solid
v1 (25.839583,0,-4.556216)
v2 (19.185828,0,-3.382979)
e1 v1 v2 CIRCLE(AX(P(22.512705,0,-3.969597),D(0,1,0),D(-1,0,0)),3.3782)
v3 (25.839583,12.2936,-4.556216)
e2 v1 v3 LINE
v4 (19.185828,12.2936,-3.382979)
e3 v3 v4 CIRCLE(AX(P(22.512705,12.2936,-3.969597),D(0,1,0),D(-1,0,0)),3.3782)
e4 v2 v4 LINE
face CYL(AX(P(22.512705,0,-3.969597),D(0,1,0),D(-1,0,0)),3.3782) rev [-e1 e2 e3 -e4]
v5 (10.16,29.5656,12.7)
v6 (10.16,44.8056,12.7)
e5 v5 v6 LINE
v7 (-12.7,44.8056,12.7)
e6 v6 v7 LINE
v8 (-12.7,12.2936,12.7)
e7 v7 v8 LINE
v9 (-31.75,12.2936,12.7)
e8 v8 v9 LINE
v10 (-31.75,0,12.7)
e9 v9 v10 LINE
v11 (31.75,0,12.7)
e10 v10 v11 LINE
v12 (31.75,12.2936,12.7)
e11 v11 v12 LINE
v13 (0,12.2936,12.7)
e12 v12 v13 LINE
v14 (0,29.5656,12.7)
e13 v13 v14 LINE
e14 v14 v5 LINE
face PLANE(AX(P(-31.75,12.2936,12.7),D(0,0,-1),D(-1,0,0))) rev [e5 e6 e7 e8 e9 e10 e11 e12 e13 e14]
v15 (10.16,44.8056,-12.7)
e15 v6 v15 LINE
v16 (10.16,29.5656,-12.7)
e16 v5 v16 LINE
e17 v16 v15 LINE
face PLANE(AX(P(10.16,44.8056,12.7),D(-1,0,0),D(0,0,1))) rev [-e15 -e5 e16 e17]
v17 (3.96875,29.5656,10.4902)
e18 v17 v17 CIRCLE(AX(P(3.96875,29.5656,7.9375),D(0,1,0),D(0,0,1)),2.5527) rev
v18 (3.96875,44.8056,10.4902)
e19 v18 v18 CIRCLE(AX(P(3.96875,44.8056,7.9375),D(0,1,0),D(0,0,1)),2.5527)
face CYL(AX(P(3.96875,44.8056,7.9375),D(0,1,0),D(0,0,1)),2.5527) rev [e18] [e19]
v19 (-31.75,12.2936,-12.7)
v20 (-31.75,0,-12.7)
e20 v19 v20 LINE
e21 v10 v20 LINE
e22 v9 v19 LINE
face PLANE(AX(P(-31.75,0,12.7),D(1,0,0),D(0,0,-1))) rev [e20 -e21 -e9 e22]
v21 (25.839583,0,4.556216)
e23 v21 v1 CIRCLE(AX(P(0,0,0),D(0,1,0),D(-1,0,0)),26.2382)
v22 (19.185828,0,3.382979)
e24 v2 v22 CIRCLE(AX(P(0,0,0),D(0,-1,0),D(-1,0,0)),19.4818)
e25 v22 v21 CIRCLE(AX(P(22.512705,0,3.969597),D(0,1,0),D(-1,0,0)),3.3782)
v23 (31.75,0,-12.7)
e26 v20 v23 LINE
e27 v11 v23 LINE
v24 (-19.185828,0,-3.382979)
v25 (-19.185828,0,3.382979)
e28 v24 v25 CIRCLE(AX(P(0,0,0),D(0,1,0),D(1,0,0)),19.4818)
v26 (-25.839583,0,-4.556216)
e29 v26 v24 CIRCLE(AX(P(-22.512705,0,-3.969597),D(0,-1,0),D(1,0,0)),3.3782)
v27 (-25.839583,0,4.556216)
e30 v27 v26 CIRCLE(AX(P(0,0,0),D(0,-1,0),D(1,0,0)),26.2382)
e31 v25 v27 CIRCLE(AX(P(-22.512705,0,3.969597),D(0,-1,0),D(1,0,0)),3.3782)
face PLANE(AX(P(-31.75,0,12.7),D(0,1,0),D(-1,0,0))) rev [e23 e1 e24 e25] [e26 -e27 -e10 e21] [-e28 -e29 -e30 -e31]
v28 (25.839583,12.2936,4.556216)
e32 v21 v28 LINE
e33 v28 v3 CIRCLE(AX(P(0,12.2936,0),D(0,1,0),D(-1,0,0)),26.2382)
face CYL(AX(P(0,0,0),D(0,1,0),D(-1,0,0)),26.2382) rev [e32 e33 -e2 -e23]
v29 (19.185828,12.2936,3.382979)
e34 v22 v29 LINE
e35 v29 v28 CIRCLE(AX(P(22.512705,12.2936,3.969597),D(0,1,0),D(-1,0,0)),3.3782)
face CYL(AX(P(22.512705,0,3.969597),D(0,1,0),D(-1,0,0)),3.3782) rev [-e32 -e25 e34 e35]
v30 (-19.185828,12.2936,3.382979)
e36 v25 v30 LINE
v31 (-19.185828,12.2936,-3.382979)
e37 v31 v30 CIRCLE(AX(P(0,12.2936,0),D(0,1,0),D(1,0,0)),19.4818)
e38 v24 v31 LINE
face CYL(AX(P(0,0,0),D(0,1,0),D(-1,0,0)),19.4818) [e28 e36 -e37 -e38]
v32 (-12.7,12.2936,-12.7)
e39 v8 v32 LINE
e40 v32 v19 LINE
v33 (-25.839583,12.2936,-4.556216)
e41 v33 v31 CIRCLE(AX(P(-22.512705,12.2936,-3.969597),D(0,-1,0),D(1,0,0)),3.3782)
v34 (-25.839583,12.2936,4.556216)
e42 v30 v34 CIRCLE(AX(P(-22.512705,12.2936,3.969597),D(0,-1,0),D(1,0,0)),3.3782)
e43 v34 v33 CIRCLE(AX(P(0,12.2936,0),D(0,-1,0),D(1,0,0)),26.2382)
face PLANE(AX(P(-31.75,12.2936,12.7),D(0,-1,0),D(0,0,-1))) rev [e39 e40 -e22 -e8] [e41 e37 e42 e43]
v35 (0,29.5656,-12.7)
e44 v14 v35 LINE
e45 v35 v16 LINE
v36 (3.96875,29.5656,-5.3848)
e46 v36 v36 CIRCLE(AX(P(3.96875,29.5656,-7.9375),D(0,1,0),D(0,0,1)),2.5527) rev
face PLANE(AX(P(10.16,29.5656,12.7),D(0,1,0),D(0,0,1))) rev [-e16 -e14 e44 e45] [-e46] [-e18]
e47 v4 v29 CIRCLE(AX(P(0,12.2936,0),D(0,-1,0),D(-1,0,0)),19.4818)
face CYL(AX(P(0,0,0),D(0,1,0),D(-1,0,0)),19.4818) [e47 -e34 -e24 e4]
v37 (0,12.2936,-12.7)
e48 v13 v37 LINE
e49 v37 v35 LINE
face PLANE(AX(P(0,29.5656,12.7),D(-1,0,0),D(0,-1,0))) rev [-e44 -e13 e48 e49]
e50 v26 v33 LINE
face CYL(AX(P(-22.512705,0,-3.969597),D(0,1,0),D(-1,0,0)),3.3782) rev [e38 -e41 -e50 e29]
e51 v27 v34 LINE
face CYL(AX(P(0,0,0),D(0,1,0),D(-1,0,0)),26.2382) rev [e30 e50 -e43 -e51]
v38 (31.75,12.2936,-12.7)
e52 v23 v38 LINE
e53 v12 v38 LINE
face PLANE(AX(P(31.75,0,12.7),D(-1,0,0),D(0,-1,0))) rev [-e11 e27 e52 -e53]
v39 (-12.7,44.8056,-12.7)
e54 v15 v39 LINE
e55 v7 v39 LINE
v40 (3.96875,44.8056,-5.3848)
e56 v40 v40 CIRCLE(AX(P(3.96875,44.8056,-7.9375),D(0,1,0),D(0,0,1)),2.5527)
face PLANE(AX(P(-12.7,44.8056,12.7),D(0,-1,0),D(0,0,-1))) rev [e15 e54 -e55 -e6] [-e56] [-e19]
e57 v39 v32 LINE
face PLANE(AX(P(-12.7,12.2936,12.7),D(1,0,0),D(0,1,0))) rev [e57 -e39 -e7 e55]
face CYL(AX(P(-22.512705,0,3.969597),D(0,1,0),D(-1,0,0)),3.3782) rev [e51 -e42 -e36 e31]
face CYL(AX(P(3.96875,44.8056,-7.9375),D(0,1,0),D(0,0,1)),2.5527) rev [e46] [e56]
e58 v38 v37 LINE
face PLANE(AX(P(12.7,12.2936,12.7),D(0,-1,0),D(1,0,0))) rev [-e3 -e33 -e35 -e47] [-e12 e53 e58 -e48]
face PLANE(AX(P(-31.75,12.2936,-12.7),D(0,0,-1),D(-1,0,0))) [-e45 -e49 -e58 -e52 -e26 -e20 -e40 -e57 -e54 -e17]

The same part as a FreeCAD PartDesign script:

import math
import FreeCAD as App
import Part
import Sketcher
from FreeCAD import Vector
Q = App.Units.Quantity

doc = App.newDocument("Part")
body = doc.addObject("PartDesign::Body", "Body")

# Sketch on XY plane
sketch1 = body.newObject("Sketcher::SketchObject", "Sketch")
sketch1.AttachmentSupport = (doc.getObject("XY_Plane"), [""])
sketch1.MapMode = "FlatFace"
sketch1.addGeometry([
    Part.LineSegment(Vector(10, 45, 0), Vector(-13, 45, 0)),  # 0
    Part.LineSegment(Vector(-13, 45, 0), Vector(-13, 12, 0)),  # 1
    Part.LineSegment(Vector(-13, 12, 0), Vector(-32, 12, 0)),  # 2
    Part.LineSegment(Vector(-32, 12, 0), Vector(-32, 0, 0)),  # 3
    Part.LineSegment(Vector(-32, 0, 0), Vector(32, 0, 0)),  # 4
    Part.LineSegment(Vector(32, 0, 0), Vector(32, 12, 0)),  # 5
    Part.LineSegment(Vector(32, 12, 0), Vector(0, 12, 0)),  # 6
    Part.LineSegment(Vector(0, 12, 0), Vector(0, 30, 0)),  # 7
    Part.LineSegment(Vector(0, 30, 0), Vector(10, 30, 0)),  # 8
    Part.LineSegment(Vector(10, 30, 0), Vector(10, 45, 0)),  # 9
], False)
sketch1.addConstraint([
    Sketcher.Constraint("Coincident", 0, 2, 1, 1),
    Sketcher.Constraint("Coincident", 1, 2, 2, 1),
    Sketcher.Constraint("Coincident", 2, 2, 3, 1),
    Sketcher.Constraint("Coincident", 3, 2, 4, 1),
    Sketcher.Constraint("Coincident", 4, 2, 5, 1),
    Sketcher.Constraint("Coincident", 5, 2, 6, 1),
    Sketcher.Constraint("Coincident", 6, 2, 7, 1),
    Sketcher.Constraint("Coincident", 7, 2, 8, 1),
    Sketcher.Constraint("Coincident", 8, 2, 9, 1),
    Sketcher.Constraint("Coincident", 9, 2, 0, 1),
    Sketcher.Constraint("Horizontal", 0),
    Sketcher.Constraint("Vertical", 1),
    Sketcher.Constraint("Horizontal", 2),
    Sketcher.Constraint("Vertical", 3),
    Sketcher.Constraint("Horizontal", 4),
    Sketcher.Constraint("Vertical", 5),
    Sketcher.Constraint("Horizontal", 6),
    Sketcher.Constraint("Vertical", 7),
    Sketcher.Constraint("Horizontal", 8),
    Sketcher.Constraint("Vertical", 9),
    Sketcher.Constraint("Symmetric", 3, 2, 4, 2, -1, 1),
    Sketcher.Constraint("PointOnObject", 6, 2, -2),
    Sketcher.Constraint("Horizontal", 2, 2, 5, 2),
    Sketcher.Constraint("DistanceX", 0, 2, 0, 1, Q("0.9 in")),
    Sketcher.Constraint("DistanceX", 4, 1, 4, 2, Q("2.5 in")),
    Sketcher.Constraint("DistanceX", 8, 1, 8, 2, Q("0.4 in")),
    Sketcher.Constraint("DistanceY", 9, 1, 9, 2, Q("0.6 in")),
    Sketcher.Constraint("DistanceY", 1, 2, 1, 1, Q("1.28 in")),
    Sketcher.Constraint("DistanceY", 3, 2, 3, 1, Q("0.484 in")),
])
pad1 = body.newObject("PartDesign::Pad", "Pad")
pad1.Profile = sketch1
pad1.Length = Q("1 in")
pad1.Midplane = True

# Sketch on XZ plane
sketch2 = body.newObject("Sketcher::SketchObject", "Sketch001")
sketch2.AttachmentSupport = (doc.getObject("XZ_Plane"), [""])
sketch2.MapMode = "FlatFace"
sketch2.AttachmentOffset = App.Placement(Vector(0, 0, -0.484 * 25.4), App.Rotation())
sketch2.addGeometry([
    Part.ArcOfCircle(Part.Circle(Vector(22.5, -4, 0), Vector(0, 0, 1), 3.4), math.radians(170), math.radians(350)),
    Part.ArcOfCircle(Part.Circle(Vector(0, 0, 0), Vector(0, 0, 1), 19.5), math.radians(-10), math.radians(10)),
    Part.ArcOfCircle(Part.Circle(Vector(22.5, 4, 0), Vector(0, 0, 1), 3.4), math.radians(10), math.radians(190)),
    Part.ArcOfCircle(Part.Circle(Vector(0, 0, 0), Vector(0, 0, 1), 26.2), math.radians(-10), math.radians(10)),
], False)
sketch2.addConstraint([
    Sketcher.Constraint("Tangent", 0, 1, 1, 1),
    Sketcher.Constraint("Tangent", 1, 2, 2, 2),
    Sketcher.Constraint("Tangent", 2, 1, 3, 2),
    Sketcher.Constraint("Tangent", 3, 1, 0, 2),
    Sketcher.Constraint("Coincident", 1, 3, -1, 1),
    Sketcher.Constraint("Coincident", 3, 3, -1, 1),
    Sketcher.Constraint("Vertical", 0, 3, 2, 3),
    Sketcher.Constraint("Radius", 0, Q("0.133 in")),
    Sketcher.Constraint("Radius", 1, Q("0.767 in")),
    Sketcher.Constraint("DistanceY", 0, 1, -1, 1, 3.382979),
])
pocket1 = body.newObject("PartDesign::Pocket", "Pocket")
pocket1.Profile = sketch2
pocket1.Type = "ThroughAll"
pocket1.Reversed = True
doc.recompute()

mirrored = body.newObject("PartDesign::Mirrored", "Mirrored")
mirrored.Originals = [pocket1]
mirrored.MirrorPlane = (doc.getObject("YZ_Plane"), [""])
body.Tip = mirrored

# Sketch on XZ plane
sketch3 = body.newObject("Sketcher::SketchObject", "Sketch002")
sketch3.AttachmentSupport = (doc.getObject("XZ_Plane"), [""])
sketch3.MapMode = "FlatFace"
sketch3.AttachmentOffset = App.Placement(Vector(0, 0, -1.764 * 25.4), App.Rotation())
sketch3.addGeometry([
    Part.Circle(Vector(4, -7.9, 0), Vector(0, 0, 1), 2.6),
    Part.Circle(Vector(4, 7.9, 0), Vector(0, 0, 1), 2.6),
], False)
sketch3.addConstraint([
    Sketcher.Constraint("Equal", 0, 1),
    Sketcher.Constraint("Symmetric", 0, 3, 1, 3, -1),
    Sketcher.Constraint("Diameter", 0, Q("0.201 in")),
    Sketcher.Constraint("DistanceX", -1, 1, 0, 3, Q("0.15625 in")),
    Sketcher.Constraint("DistanceY", 0, 3, -1, 1, Q("0.3125 in")),
])
doc.recompute()
hole = body.newObject("PartDesign::Hole", "Hole")
hole.Profile = sketch3
hole.ThreadType = "None"
hole.Diameter = Q("0.201 in")
hole.DepthType = "Dimension"
hole.Depth = Q("0.6 in")
hole.DrillPoint = "Angled"
hole.DrillPointAngle = 118
hole.Reversed = True

doc.recompute()
